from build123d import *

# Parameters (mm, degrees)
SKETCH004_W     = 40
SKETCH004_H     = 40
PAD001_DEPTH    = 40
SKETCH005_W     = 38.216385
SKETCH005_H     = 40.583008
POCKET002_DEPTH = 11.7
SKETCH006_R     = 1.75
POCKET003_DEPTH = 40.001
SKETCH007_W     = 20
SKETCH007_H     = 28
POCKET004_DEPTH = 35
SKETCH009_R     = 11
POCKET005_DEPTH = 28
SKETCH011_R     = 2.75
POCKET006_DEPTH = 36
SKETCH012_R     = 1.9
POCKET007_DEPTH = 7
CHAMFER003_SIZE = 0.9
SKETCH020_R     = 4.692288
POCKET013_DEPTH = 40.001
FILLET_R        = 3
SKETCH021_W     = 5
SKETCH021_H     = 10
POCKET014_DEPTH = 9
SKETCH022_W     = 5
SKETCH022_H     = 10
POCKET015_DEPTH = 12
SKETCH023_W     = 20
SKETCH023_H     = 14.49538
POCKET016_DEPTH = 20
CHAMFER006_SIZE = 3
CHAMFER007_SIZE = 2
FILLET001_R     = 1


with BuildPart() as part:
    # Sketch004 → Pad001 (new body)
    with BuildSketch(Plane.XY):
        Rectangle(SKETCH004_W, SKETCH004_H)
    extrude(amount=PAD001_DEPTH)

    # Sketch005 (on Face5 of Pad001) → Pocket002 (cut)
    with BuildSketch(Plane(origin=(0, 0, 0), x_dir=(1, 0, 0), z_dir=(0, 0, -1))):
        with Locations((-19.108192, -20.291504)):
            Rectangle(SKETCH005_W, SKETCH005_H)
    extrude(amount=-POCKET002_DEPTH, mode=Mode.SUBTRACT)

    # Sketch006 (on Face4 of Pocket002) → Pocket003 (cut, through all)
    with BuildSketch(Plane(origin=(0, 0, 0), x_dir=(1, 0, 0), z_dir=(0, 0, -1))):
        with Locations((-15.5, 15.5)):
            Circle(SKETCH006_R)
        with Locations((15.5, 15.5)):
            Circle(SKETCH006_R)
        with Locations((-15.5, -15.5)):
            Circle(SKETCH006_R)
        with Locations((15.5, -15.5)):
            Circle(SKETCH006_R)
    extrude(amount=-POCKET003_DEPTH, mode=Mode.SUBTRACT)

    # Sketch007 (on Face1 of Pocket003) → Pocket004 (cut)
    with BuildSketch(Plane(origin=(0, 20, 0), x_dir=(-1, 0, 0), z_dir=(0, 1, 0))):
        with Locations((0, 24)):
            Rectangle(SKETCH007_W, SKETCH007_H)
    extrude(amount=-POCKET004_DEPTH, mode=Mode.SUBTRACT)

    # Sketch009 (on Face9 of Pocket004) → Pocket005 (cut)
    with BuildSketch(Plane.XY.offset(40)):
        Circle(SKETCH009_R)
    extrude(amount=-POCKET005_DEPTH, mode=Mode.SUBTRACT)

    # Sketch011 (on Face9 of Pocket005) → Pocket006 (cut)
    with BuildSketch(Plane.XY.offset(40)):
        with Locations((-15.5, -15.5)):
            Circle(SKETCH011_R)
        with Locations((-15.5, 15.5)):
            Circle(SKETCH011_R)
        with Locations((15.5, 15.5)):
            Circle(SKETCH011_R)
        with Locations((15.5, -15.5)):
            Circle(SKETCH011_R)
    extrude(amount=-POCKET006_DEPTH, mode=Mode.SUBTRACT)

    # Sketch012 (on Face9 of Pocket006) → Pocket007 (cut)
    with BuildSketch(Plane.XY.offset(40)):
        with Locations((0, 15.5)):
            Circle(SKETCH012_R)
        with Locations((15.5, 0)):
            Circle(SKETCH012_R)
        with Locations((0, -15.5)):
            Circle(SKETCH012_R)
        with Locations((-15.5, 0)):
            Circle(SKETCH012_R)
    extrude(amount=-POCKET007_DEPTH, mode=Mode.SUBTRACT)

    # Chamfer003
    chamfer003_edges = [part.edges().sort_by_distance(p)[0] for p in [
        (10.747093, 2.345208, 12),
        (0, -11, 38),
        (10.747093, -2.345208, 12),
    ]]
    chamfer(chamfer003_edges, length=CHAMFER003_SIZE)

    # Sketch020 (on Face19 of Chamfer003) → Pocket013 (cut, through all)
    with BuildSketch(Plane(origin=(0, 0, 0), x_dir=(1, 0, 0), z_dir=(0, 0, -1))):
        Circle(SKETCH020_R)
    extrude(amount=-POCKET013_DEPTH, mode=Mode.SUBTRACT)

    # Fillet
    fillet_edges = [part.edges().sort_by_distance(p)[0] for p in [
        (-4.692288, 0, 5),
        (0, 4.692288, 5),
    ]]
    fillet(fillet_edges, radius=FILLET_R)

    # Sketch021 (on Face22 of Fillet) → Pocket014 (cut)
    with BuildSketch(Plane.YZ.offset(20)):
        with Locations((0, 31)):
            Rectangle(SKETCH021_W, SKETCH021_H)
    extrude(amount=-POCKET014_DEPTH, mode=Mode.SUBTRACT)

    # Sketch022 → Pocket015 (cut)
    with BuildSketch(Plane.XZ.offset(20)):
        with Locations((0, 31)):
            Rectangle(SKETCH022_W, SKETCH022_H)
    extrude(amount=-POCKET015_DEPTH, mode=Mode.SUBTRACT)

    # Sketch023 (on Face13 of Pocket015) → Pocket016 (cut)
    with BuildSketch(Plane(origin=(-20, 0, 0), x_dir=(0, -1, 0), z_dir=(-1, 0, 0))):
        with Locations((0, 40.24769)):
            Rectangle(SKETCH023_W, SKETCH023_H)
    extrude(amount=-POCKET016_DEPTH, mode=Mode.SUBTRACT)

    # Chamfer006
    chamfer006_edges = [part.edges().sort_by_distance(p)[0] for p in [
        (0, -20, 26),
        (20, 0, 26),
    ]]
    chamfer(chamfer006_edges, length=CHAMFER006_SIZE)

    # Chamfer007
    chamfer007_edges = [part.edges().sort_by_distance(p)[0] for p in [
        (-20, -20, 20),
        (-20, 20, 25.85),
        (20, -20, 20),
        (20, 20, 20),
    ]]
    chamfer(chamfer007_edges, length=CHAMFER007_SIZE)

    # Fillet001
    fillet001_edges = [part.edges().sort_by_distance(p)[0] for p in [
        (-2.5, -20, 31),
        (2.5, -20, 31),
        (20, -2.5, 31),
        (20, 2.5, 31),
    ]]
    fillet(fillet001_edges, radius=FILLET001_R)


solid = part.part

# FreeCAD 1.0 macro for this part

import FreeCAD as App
import Part
import Sketcher
from FreeCAD import Vector


def edges_at(feature, points):
    """Names of the edges that pass closest to the given points."""
    edges = feature.Shape.Edges
    near = lambda p: min(range(len(edges)), key=lambda i: edges[i].distToShape(Part.Vertex(*p))[0])
    return sorted({f"Edge{near(p) + 1}" for p in points})

doc = App.newDocument("Part")
body = doc.addObject("PartDesign::Body", "Body")

sketch1 = body.newObject("Sketcher::SketchObject", "Sketch")
sketch1.AttachmentSupport = (doc.getObject("XY_Plane"), [""])
sketch1.MapMode = "FlatFace"
sketch1.addGeometry([
    Part.LineSegment(Vector(-20, 20, 0), Vector(-20, -20, 0)),
    Part.LineSegment(Vector(-20, -20, 0), Vector(20, -20, 0)),
    Part.LineSegment(Vector(20, -20, 0), Vector(20, 20, 0)),
    Part.LineSegment(Vector(20, 20, 0), Vector(-20, 20, 0)),
], False)
sketch1.addConstraint([
    Sketcher.Constraint("Coincident", 0, 2, 1, 1),
    Sketcher.Constraint("Coincident", 1, 2, 2, 1),
    Sketcher.Constraint("Coincident", 2, 2, 3, 1),
    Sketcher.Constraint("Coincident", 3, 2, 0, 1),
    Sketcher.Constraint("Vertical", 0),
    Sketcher.Constraint("Horizontal", 1),
    Sketcher.Constraint("Vertical", 2),
    Sketcher.Constraint("Horizontal", 3),
    Sketcher.Constraint("Symmetric", 0, 2, 2, 2, -1, 1),
    Sketcher.Constraint("Equal", 3, 0),
    Sketcher.Constraint("DistanceX", 1, 1, 1, 2, 40.0),
])
pad1 = body.newObject("PartDesign::Pad", "Pad")
pad1.Profile = sketch1
pad1.Length = 40

sketch2 = body.newObject("Sketcher::SketchObject", "Sketch001")
sketch2.AttachmentSupport = (doc.getObject("XY_Plane"), [""])
sketch2.MapMode = "FlatFace"
sketch2.addGeometry([
    Part.LineSegment(Vector(-38.216384, 0, 0), Vector(-38.216384, 40.583008, 0)),
    Part.LineSegment(Vector(-38.216384, 40.583008, 0), Vector(0, 40.583008, 0)),
    Part.LineSegment(Vector(0, 40.583008, 0), Vector(0, 0, 0)),
    Part.LineSegment(Vector(0, 0, 0), Vector(-38.216384, 0, 0)),
], False)
sketch2.addConstraint([
    Sketcher.Constraint("Coincident", 0, 2, 1, 1),
    Sketcher.Constraint("Coincident", 1, 2, 2, 1),
    Sketcher.Constraint("Coincident", 2, 2, 3, 1),
    Sketcher.Constraint("Coincident", 3, 2, 0, 1),
    Sketcher.Constraint("Vertical", 0),
    Sketcher.Constraint("Horizontal", 1),
    Sketcher.Constraint("Vertical", 2),
    Sketcher.Constraint("Horizontal", 3),
    Sketcher.Constraint("Coincident", 2, 2, -1, 1),
    Sketcher.Constraint("DistanceX", 1, 1, 1, 2, 38.216385),
    Sketcher.Constraint("DistanceY", 0, 1, 0, 2, 40.583008),
])
pocket1 = body.newObject("PartDesign::Pocket", "Pocket")
pocket1.Profile = sketch2
pocket1.Length = 11.7
pocket1.Reversed = True

sketch3 = body.newObject("Sketcher::SketchObject", "Sketch002")
sketch3.AttachmentSupport = (doc.getObject("XY_Plane"), [""])
sketch3.MapMode = "FlatFace"
sketch3.addGeometry([
    Part.Circle(Vector(-15.5, -15.5, 0), Vector(0, 0, 1), 1.75),
    Part.Circle(Vector(15.5, -15.5, 0), Vector(0, 0, 1), 1.75),
    Part.Circle(Vector(-15.5, 15.5, 0), Vector(0, 0, 1), 1.75),
    Part.Circle(Vector(15.5, 15.5, 0), Vector(0, 0, 1), 1.75),
], False)
sketch3.addConstraint([
    Sketcher.Constraint("Equal", 0, 1),
    Sketcher.Constraint("Equal", 1, 2),
    Sketcher.Constraint("Equal", 2, 3),
    Sketcher.Constraint("Symmetric", 1, 3, 2, 3, -1, 1),
    Sketcher.Constraint("Symmetric", 0, 3, 3, 3, -1, 1),
    Sketcher.Constraint("Symmetric", 0, 3, 1, 3, -2),
    Sketcher.Constraint("Diameter", 0, 3.5),
    Sketcher.Constraint("DistanceX", 0, 3, 1, 3, 31.0),
    Sketcher.Constraint("DistanceY", 0, 3, 2, 3, 31.0),
])
pocket2 = body.newObject("PartDesign::Pocket", "Pocket001")
pocket2.Profile = sketch3
pocket2.Type = "ThroughAll"
pocket2.Reversed = True

sketch4 = body.newObject("Sketcher::SketchObject", "Sketch003")
sketch4.AttachmentSupport = (doc.getObject("XZ_Plane"), [""])
sketch4.MapMode = "FlatFace"
sketch4.AttachmentOffset = App.Placement(Vector(0, 0, -20), App.Rotation())
sketch4.addGeometry([
    Part.LineSegment(Vector(10, 38, 0), Vector(10, 10, 0)),
    Part.LineSegment(Vector(10, 10, 0), Vector(-10, 10, 0)),
    Part.LineSegment(Vector(-10, 10, 0), Vector(-10, 38, 0)),
    Part.LineSegment(Vector(-10, 38, 0), Vector(10, 38, 0)),
], False)
sketch4.addConstraint([
    Sketcher.Constraint("Coincident", 0, 2, 1, 1),
    Sketcher.Constraint("Coincident", 1, 2, 2, 1),
    Sketcher.Constraint("Coincident", 2, 2, 3, 1),
    Sketcher.Constraint("Coincident", 3, 2, 0, 1),
    Sketcher.Constraint("Vertical", 0),
    Sketcher.Constraint("Horizontal", 1),
    Sketcher.Constraint("Vertical", 2),
    Sketcher.Constraint("Horizontal", 3),
    Sketcher.Constraint("DistanceX", 1, 2, 1, 1, 20.0),
    Sketcher.Constraint("DistanceY", 0, 2, 0, 1, 28.0),
    Sketcher.Constraint("DistanceX", -1, 1, 0, 2, 10.0),
    Sketcher.Constraint("DistanceY", -1, 1, 0, 2, 10.0),
])
pocket3 = body.newObject("PartDesign::Pocket", "Pocket002")
pocket3.Profile = sketch4
pocket3.Length = 35
pocket3.Reversed = True

sketch5 = body.newObject("Sketcher::SketchObject", "Sketch004")
sketch5.AttachmentSupport = (doc.getObject("XY_Plane"), [""])
sketch5.MapMode = "FlatFace"
sketch5.AttachmentOffset = App.Placement(Vector(0, 0, 40), App.Rotation())
sketch5.addGeometry(Part.Circle(Vector(0, 0, 0), Vector(0, 0, 1), 11), False)
sketch5.addConstraint([
    Sketcher.Constraint("Coincident", 0, 3, -1, 1),
    Sketcher.Constraint("Diameter", 0, 22.0),
])
pocket4 = body.newObject("PartDesign::Pocket", "Pocket003")
pocket4.Profile = sketch5
pocket4.Length = 28

sketch6 = body.newObject("Sketcher::SketchObject", "Sketch005")
sketch6.AttachmentSupport = (doc.getObject("XY_Plane"), [""])
sketch6.MapMode = "FlatFace"
sketch6.AttachmentOffset = App.Placement(Vector(0, 0, 40), App.Rotation())
sketch6.addGeometry([
    Part.Circle(Vector(-15.5, -15.5, 0), Vector(0, 0, 1), 2.75),
    Part.Circle(Vector(-15.5, 15.5, 0), Vector(0, 0, 1), 2.75),
    Part.Circle(Vector(15.5, 15.5, 0), Vector(0, 0, 1), 2.75),
    Part.Circle(Vector(15.5, -15.5, 0), Vector(0, 0, 1), 2.75),
], False)
sketch6.addConstraint([
    Sketcher.Constraint("Equal", 0, 1),
    Sketcher.Constraint("Equal", 1, 2),
    Sketcher.Constraint("Equal", 2, 3),
    Sketcher.Constraint("Symmetric", 0, 3, 2, 3, -1, 1),
    Sketcher.Constraint("Symmetric", 1, 3, 3, 3, -1, 1),
    Sketcher.Constraint("Symmetric", 1, 3, 2, 3, -2),
    Sketcher.Constraint("Diameter", 0, 5.5),
    Sketcher.Constraint("DistanceY", 0, 3, 1, 3, 31.0),
    Sketcher.Constraint("DistanceX", 1, 3, 2, 3, 31.0),
])
pocket5 = body.newObject("PartDesign::Pocket", "Pocket004")
pocket5.Profile = sketch6
pocket5.Length = 36

sketch7 = body.newObject("Sketcher::SketchObject", "Sketch006")
sketch7.AttachmentSupport = (doc.getObject("XY_Plane"), [""])
sketch7.MapMode = "FlatFace"
sketch7.AttachmentOffset = App.Placement(Vector(0, 0, 40), App.Rotation())
sketch7.addGeometry([
    Part.Circle(Vector(0, 15.5, 0), Vector(0, 0, 1), 1.9),
    Part.Circle(Vector(15.5, 0, 0), Vector(0, 0, 1), 1.9),
    Part.Circle(Vector(0, -15.5, 0), Vector(0, 0, 1), 1.9),
    Part.Circle(Vector(-15.5, 0, 0), Vector(0, 0, 1), 1.9),
], False)
sketch7.addConstraint([
    Sketcher.Constraint("Equal", 0, 1),
    Sketcher.Constraint("Equal", 1, 2),
    Sketcher.Constraint("Equal", 2, 3),
    Sketcher.Constraint("Symmetric", 0, 3, 2, 3, -1, 1),
    Sketcher.Constraint("Symmetric", 1, 3, 3, 3, -1, 1),
    Sketcher.Constraint("PointOnObject", 0, 3, -2),
    Sketcher.Constraint("PointOnObject", 1, 3, -1),
    Sketcher.Constraint("Diameter", 0, 3.8),
    Sketcher.Constraint("DistanceY", 2, 3, 0, 3, 31.0),
    Sketcher.Constraint("DistanceX", 3, 3, 1, 3, 31.0),
])
pocket6 = body.newObject("PartDesign::Pocket", "Pocket005")
pocket6.Profile = sketch7
pocket6.Length = 7
doc.recompute()

chamfer = body.newObject("PartDesign::Chamfer", "Chamfer")
chamfer.Base = (pocket6, edges_at(pocket6, [(10.747, 2.345, 12), (0, -11, 38), (10.747, -2.345, 12)]))
chamfer.Size = 0.9

sketch8 = body.newObject("Sketcher::SketchObject", "Sketch007")
sketch8.AttachmentSupport = (doc.getObject("XY_Plane"), [""])
sketch8.MapMode = "FlatFace"
sketch8.addGeometry(Part.Circle(Vector(0, 0, 0), Vector(0, 0, 1), 4.692288), False)
sketch8.addConstraint([
    Sketcher.Constraint("Coincident", 0, 3, -1, 1),
    Sketcher.Constraint("Diameter", 0, 9.384576),
])
pocket7 = body.newObject("PartDesign::Pocket", "Pocket006")
pocket7.Profile = sketch8
pocket7.Type = "ThroughAll"
pocket7.Reversed = True
doc.recompute()

fillet = body.newObject("PartDesign::Fillet", "Fillet")
fillet.Base = (pocket7, edges_at(pocket7, [(-4.692, 0, 5), (0, 4.692, 5)]))
fillet.Radius = 3

sketch9 = body.newObject("Sketcher::SketchObject", "Sketch008")
sketch9.AttachmentSupport = (doc.getObject("YZ_Plane"), [""])
sketch9.MapMode = "FlatFace"
sketch9.AttachmentOffset = App.Placement(Vector(0, 0, 20), App.Rotation())
sketch9.addGeometry([
    Part.LineSegment(Vector(-2.5, 36, 0), Vector(-2.5, 26, 0)),
    Part.LineSegment(Vector(-2.5, 26, 0), Vector(2.5, 26, 0)),
    Part.LineSegment(Vector(2.5, 26, 0), Vector(2.5, 36, 0)),
    Part.LineSegment(Vector(2.5, 36, 0), Vector(-2.5, 36, 0)),
], False)
sketch9.addConstraint([
    Sketcher.Constraint("Coincident", 0, 2, 1, 1),
    Sketcher.Constraint("Coincident", 1, 2, 2, 1),
    Sketcher.Constraint("Coincident", 2, 2, 3, 1),
    Sketcher.Constraint("Coincident", 3, 2, 0, 1),
    Sketcher.Constraint("Vertical", 0),
    Sketcher.Constraint("Horizontal", 1),
    Sketcher.Constraint("Vertical", 2),
    Sketcher.Constraint("Horizontal", 3),
    Sketcher.Constraint("DistanceX", 1, 1, 1, 2, 5.0),
    Sketcher.Constraint("DistanceY", 0, 2, 0, 1, 10.0),
    Sketcher.Constraint("DistanceY", -1, 1, 0, 2, 26.0),
    Sketcher.Constraint("DistanceX", 0, 2, -1, 1, 2.5),
])
pocket8 = body.newObject("PartDesign::Pocket", "Pocket007")
pocket8.Profile = sketch9
pocket8.Length = 9

sketch10 = body.newObject("Sketcher::SketchObject", "Sketch009")
sketch10.AttachmentSupport = (doc.getObject("XZ_Plane"), [""])
sketch10.MapMode = "FlatFace"
sketch10.AttachmentOffset = App.Placement(Vector(0, 0, 20), App.Rotation())
sketch10.addGeometry([
    Part.LineSegment(Vector(-2.5, 36, 0), Vector(-2.5, 26, 0)),
    Part.LineSegment(Vector(-2.5, 26, 0), Vector(2.5, 26, 0)),
    Part.LineSegment(Vector(2.5, 26, 0), Vector(2.5, 36, 0)),
    Part.LineSegment(Vector(2.5, 36, 0), Vector(-2.5, 36, 0)),
], False)
sketch10.addConstraint([
    Sketcher.Constraint("Coincident", 0, 2, 1, 1),
    Sketcher.Constraint("Coincident", 1, 2, 2, 1),
    Sketcher.Constraint("Coincident", 2, 2, 3, 1),
    Sketcher.Constraint("Coincident", 3, 2, 0, 1),
    Sketcher.Constraint("Vertical", 0),
    Sketcher.Constraint("Horizontal", 1),
    Sketcher.Constraint("Vertical", 2),
    Sketcher.Constraint("Horizontal", 3),
    Sketcher.Constraint("DistanceX", 1, 1, 1, 2, 5.0),
    Sketcher.Constraint("DistanceY", 0, 2, 0, 1, 10.0),
    Sketcher.Constraint("DistanceY", -1, 1, 0, 2, 26.0),
    Sketcher.Constraint("DistanceX", 0, 2, -1, 1, 2.5),
])
pocket9 = body.newObject("PartDesign::Pocket", "Pocket008")
pocket9.Profile = sketch10
pocket9.Length = 12

sketch11 = body.newObject("Sketcher::SketchObject", "Sketch010")
sketch11.AttachmentSupport = (doc.getObject("YZ_Plane"), [""])
sketch11.MapMode = "FlatFace"
sketch11.AttachmentOffset = App.Placement(Vector(0, 0, -20), App.Rotation())
sketch11.addGeometry([
    Part.LineSegment(Vector(10, 47.49538, 0), Vector(10, 33, 0)),
    Part.LineSegment(Vector(10, 33, 0), Vector(-10, 33, 0)),
    Part.LineSegment(Vector(-10, 33, 0), Vector(-10, 47.49538, 0)),
    Part.LineSegment(Vector(-10, 47.49538, 0), Vector(10, 47.49538, 0)),
], False)
sketch11.addConstraint([
    Sketcher.Constraint("Coincident", 0, 2, 1, 1),
    Sketcher.Constraint("Coincident", 1, 2, 2, 1),
    Sketcher.Constraint("Coincident", 2, 2, 3, 1),
    Sketcher.Constraint("Coincident", 3, 2, 0, 1),
    Sketcher.Constraint("Vertical", 0),
    Sketcher.Constraint("Horizontal", 1),
    Sketcher.Constraint("Vertical", 2),
    Sketcher.Constraint("Horizontal", 3),
    Sketcher.Constraint("DistanceX", 1, 2, 1, 1, 20.0),
    Sketcher.Constraint("DistanceX", -1, 1, 0, 2, 10.0),
    Sketcher.Constraint("DistanceY", -1, 1, 0, 2, 33.0),
    Sketcher.Constraint("DistanceY", 0, 2, 0, 1, 14.49538),
])
pocket10 = body.newObject("PartDesign::Pocket", "Pocket009")
pocket10.Profile = sketch11
pocket10.Length = 20
pocket10.Reversed = True
doc.recompute()

chamfer2 = body.newObject("PartDesign::Chamfer", "Chamfer001")
chamfer2.Base = (pocket10, edges_at(pocket10, [(0, -20, 26), (20, 0, 26)]))
chamfer2.Size = 3
doc.recompute()

chamfer3 = body.newObject("PartDesign::Chamfer", "Chamfer002")
chamfer3.Base = (chamfer2, edges_at(chamfer2, [
    (-20, -20, 20),
    (-20, 20, 25.85),
    (20, -20, 20),
    (20, 20, 20),
]))
chamfer3.Size = 2
doc.recompute()

fillet2 = body.newObject("PartDesign::Fillet", "Fillet001")
fillet2.Base = (chamfer3, edges_at(chamfer3, [
    (-2.5, -20, 29.5),
    (2.5, -20, 29.5),
    (20, -2.5, 29.5),
    (20, 2.5, 29.5),
]))
fillet2.Radius = 1

doc.recompute()
